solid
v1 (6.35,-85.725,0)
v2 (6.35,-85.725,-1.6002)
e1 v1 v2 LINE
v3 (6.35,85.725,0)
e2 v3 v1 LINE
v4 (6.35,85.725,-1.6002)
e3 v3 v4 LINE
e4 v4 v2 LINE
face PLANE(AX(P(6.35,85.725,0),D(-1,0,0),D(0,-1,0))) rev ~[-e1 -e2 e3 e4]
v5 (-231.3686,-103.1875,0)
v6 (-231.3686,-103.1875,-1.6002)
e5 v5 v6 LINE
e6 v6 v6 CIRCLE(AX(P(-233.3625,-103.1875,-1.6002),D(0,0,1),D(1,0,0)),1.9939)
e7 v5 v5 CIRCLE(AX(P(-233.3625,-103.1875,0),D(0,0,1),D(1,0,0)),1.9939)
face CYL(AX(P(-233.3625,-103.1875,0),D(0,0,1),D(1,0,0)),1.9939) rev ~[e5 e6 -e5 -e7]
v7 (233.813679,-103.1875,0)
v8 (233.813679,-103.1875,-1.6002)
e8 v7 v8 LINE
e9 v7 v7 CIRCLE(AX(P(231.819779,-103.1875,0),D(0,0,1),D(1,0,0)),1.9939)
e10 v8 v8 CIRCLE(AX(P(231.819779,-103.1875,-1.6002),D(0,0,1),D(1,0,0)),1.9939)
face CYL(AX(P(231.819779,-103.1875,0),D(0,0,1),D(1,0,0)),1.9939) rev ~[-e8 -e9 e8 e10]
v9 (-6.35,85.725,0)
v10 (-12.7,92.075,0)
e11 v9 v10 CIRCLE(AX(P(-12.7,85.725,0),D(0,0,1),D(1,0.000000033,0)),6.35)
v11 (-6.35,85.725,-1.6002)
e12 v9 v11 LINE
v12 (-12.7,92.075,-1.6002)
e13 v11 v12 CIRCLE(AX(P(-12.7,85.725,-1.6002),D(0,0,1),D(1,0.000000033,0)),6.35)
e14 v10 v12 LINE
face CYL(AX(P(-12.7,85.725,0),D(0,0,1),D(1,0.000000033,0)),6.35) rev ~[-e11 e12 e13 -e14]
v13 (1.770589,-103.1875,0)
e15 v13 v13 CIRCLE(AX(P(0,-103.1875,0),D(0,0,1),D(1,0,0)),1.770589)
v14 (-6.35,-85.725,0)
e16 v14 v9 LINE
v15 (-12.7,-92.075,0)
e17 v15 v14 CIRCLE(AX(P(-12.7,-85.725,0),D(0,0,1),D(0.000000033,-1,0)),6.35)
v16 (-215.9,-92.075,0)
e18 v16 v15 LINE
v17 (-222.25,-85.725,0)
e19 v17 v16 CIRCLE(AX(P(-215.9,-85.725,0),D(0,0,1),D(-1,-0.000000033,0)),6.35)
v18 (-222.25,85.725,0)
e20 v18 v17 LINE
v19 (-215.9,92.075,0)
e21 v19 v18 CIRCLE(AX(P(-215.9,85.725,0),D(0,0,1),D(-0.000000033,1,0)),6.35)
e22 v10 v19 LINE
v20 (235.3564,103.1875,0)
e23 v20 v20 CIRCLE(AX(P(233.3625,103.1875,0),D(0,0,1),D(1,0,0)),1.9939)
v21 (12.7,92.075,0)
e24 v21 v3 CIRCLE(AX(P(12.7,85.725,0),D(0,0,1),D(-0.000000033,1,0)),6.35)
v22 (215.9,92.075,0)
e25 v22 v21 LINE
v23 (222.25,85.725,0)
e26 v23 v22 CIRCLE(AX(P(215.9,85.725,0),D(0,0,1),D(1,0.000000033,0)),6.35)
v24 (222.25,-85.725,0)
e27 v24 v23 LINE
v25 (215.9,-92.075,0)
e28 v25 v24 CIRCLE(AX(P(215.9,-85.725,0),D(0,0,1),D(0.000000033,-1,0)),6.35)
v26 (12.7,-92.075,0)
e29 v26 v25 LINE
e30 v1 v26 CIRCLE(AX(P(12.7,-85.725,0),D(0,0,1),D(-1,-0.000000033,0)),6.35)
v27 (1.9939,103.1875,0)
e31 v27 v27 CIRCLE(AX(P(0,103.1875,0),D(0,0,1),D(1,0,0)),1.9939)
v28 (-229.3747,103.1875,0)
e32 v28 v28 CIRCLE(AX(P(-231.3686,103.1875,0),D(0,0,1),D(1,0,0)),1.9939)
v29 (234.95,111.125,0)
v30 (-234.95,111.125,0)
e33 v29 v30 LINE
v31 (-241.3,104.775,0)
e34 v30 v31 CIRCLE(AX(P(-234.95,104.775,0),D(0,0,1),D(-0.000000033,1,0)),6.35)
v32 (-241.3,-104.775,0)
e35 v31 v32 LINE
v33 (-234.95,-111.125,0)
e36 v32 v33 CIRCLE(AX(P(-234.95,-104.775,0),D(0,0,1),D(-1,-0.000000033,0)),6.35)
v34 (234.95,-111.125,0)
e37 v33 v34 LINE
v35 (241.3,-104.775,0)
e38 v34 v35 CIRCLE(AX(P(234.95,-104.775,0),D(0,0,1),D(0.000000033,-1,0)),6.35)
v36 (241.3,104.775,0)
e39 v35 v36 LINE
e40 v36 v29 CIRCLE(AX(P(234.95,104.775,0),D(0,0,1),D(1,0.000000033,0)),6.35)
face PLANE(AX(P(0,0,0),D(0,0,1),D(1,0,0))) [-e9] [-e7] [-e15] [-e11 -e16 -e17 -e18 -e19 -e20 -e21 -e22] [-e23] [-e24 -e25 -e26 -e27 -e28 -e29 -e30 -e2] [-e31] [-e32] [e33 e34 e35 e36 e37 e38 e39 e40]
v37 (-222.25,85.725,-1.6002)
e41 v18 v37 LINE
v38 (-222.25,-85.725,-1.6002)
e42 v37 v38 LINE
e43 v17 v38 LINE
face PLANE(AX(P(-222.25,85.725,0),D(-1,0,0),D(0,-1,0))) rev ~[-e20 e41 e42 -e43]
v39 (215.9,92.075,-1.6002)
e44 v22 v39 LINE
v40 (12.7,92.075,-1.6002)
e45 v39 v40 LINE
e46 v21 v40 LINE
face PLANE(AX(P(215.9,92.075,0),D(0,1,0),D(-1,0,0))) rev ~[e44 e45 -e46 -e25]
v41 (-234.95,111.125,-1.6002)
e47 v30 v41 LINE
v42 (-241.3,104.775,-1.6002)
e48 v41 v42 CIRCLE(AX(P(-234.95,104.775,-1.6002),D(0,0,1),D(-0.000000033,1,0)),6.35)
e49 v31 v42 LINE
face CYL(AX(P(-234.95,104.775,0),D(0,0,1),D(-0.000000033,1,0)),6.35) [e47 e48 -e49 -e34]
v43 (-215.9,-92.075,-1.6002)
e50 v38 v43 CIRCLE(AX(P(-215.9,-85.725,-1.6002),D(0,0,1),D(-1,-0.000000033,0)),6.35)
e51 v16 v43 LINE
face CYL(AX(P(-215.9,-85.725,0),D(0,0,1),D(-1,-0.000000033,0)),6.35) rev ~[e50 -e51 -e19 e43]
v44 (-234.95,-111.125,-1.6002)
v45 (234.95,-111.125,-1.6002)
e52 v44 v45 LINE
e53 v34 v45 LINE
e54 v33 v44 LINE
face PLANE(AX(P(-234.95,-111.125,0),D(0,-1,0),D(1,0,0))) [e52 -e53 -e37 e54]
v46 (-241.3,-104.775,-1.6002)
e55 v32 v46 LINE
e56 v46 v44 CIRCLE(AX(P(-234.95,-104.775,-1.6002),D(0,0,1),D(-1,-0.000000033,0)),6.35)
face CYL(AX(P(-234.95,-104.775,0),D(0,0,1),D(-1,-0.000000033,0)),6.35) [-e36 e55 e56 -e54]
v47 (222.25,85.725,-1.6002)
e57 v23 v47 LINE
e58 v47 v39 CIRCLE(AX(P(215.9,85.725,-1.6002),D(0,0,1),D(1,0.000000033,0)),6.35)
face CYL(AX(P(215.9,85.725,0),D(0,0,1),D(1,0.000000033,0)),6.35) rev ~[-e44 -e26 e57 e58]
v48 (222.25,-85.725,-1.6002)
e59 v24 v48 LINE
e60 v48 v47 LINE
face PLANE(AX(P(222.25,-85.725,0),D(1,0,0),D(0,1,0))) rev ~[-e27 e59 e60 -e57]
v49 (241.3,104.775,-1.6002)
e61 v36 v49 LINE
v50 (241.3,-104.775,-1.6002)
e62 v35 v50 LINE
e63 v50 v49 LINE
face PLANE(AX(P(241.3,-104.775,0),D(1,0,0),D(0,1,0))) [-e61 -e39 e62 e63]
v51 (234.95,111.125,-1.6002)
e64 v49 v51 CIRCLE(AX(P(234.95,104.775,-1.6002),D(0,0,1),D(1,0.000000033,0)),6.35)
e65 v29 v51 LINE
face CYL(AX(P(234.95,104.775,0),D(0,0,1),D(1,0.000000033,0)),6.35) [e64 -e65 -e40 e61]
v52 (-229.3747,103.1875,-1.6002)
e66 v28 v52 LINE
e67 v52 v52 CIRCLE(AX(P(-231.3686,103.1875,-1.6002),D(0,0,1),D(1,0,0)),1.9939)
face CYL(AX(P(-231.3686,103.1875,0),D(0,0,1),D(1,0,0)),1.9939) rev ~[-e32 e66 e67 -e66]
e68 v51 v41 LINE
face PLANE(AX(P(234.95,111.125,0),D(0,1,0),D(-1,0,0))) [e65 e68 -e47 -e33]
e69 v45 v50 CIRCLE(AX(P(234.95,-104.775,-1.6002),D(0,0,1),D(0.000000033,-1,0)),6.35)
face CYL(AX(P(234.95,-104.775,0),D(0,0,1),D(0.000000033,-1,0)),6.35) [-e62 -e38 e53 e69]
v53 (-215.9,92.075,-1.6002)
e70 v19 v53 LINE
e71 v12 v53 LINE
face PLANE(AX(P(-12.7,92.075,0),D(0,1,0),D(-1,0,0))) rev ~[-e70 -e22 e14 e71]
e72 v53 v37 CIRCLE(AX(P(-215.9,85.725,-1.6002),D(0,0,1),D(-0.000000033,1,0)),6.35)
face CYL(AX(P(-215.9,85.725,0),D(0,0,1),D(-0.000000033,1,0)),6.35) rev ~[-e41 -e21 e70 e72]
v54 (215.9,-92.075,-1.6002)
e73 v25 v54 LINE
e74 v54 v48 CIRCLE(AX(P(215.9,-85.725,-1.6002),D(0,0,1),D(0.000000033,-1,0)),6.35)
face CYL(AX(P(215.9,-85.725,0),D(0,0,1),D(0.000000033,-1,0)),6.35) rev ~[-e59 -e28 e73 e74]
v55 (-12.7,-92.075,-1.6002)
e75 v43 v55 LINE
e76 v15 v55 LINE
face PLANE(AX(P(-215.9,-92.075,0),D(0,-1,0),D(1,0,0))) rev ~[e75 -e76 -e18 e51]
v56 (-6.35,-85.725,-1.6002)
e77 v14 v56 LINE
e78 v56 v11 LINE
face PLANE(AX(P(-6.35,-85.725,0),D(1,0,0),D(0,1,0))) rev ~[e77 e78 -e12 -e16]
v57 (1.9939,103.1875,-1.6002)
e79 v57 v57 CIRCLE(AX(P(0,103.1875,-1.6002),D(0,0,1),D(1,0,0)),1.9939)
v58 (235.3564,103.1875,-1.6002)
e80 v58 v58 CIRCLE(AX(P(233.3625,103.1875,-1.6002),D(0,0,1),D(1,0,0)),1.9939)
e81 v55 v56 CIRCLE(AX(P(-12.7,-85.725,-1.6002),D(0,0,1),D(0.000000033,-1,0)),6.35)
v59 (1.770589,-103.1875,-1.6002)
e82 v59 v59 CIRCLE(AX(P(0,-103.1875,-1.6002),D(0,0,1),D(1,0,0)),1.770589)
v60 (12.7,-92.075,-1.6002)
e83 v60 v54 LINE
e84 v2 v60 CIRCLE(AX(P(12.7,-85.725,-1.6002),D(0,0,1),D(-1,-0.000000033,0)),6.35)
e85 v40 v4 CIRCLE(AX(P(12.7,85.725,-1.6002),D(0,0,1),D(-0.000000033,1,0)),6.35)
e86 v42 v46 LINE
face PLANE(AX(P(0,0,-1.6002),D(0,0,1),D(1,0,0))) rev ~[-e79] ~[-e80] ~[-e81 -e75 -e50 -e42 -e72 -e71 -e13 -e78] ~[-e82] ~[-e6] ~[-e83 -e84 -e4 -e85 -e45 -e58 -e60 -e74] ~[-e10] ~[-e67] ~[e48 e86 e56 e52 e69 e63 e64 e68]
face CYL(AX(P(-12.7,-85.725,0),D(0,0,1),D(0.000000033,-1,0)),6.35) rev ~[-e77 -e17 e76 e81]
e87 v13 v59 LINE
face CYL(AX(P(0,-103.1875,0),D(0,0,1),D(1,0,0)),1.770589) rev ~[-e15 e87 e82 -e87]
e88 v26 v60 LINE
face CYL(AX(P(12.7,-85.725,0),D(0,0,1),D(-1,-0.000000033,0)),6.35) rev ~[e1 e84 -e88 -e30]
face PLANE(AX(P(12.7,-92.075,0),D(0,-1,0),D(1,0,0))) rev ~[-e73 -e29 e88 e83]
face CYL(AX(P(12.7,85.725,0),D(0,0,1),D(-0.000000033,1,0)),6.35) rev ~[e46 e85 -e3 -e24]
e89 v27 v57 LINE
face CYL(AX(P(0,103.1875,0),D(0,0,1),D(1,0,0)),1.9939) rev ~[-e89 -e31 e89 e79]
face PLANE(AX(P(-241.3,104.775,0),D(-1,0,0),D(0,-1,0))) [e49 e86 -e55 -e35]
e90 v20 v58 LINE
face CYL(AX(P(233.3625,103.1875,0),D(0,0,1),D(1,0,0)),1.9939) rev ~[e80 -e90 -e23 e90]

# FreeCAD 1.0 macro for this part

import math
import FreeCAD as App
import Part
import Sketcher
from FreeCAD import Vector
Q = App.Units.Quantity

doc = App.newDocument("Part")
body = doc.addObject("PartDesign::Body", "Body")

# Sketch on XY plane
sketch1 = doc.addObject("Sketcher::SketchObject", "Sketch")
body.addObject(sketch1)
sketch1.AttachmentSupport = (doc.XY_Plane, [""])
sketch1.MapMode = "FlatFace"
sketch1.addGeometry(Part.ArcOfCircle(Part.Circle(Vector(-234.95, -104.775, 0), Vector(0, 0, 1), 6.35), math.radians(-179.999998), math.radians(-90.000002)), False)
sketch1.addGeometry(Part.LineSegment(Vector(-234.95, -111.125, 0), Vector(234.95, -111.125, 0)), False)
sketch1.addGeometry(Part.ArcOfCircle(Part.Circle(Vector(234.95, -104.775, 0), Vector(0, 0, 1), 6.35), math.radians(-89.999998), math.radians(-0.000002)), False)
sketch1.addGeometry(Part.LineSegment(Vector(241.3, -104.775, 0), Vector(241.3, 104.775, 0)), False)
sketch1.addGeometry(Part.ArcOfCircle(Part.Circle(Vector(234.95, 104.775, 0), Vector(0, 0, 1), 6.35), math.radians(0.000002), math.radians(89.999998)), False)
sketch1.addGeometry(Part.LineSegment(Vector(234.95, 111.125, 0), Vector(-234.95, 111.125, 0)), False)
sketch1.addGeometry(Part.ArcOfCircle(Part.Circle(Vector(-234.95, 104.775, 0), Vector(0, 0, 1), 6.35), math.radians(90.000002), math.radians(179.999998)), False)
sketch1.addGeometry(Part.LineSegment(Vector(-241.3, 104.775, 0), Vector(-241.3, -104.775, 0)), False)
sketch1.addConstraint(Sketcher.Constraint("Tangent", 0, 2, 1, 1))
sketch1.addConstraint(Sketcher.Constraint("Tangent", 1, 2, 2, 1))
sketch1.addConstraint(Sketcher.Constraint("Tangent", 2, 2, 3, 1))
sketch1.addConstraint(Sketcher.Constraint("Tangent", 3, 2, 4, 1))
sketch1.addConstraint(Sketcher.Constraint("Tangent", 4, 2, 5, 1))
sketch1.addConstraint(Sketcher.Constraint("Tangent", 5, 2, 6, 1))
sketch1.addConstraint(Sketcher.Constraint("Tangent", 6, 2, 7, 1))
sketch1.addConstraint(Sketcher.Constraint("Tangent", 7, 2, 0, 1))
sketch1.addConstraint(Sketcher.Constraint("Horizontal", 1))
sketch1.addConstraint(Sketcher.Constraint("Vertical", 3))
sketch1.addConstraint(Sketcher.Constraint("Horizontal", 5))
sketch1.addConstraint(Sketcher.Constraint("Vertical", 7))
sketch1.addConstraint(Sketcher.Constraint("Equal", 0, 2))
sketch1.addConstraint(Sketcher.Constraint("Equal", 2, 4))
sketch1.addConstraint(Sketcher.Constraint("Equal", 4, 6))
sketch1.addConstraint(Sketcher.Constraint("Symmetric", 0, 3, 4, 3, -1, 1))
sketch1.addConstraint(Sketcher.Constraint("Radius", 0, Q("0.25 in")))
sketch1.addConstraint(Sketcher.Constraint("DistanceX", 1, 1, 1, 2, Q("18.5 in")))
sketch1.addConstraint(Sketcher.Constraint("DistanceY", 3, 1, 3, 2, Q("8.25 in")))
pad1 = doc.addObject("PartDesign::Pad", "Pad")
body.addObject(pad1)
pad1.Profile = sketch1
pad1.Length = Q("0.063 in")
pad1.Reversed = True

# Sketch on XY plane
sketch2 = doc.addObject("Sketcher::SketchObject", "Sketch001")
body.addObject(sketch2)
sketch2.AttachmentSupport = (doc.XY_Plane, [""])
sketch2.MapMode = "FlatFace"
sketch2.addGeometry(Part.ArcOfCircle(Part.Circle(Vector(-215.9, -85.725, 0), Vector(0, 0, 1), 6.35), math.radians(-179.999998), math.radians(-90.000002)), False)
sketch2.addGeometry(Part.LineSegment(Vector(-215.9, -92.075, 0), Vector(-12.7, -92.075, 0)), False)
sketch2.addGeometry(Part.ArcOfCircle(Part.Circle(Vector(-12.7, -85.725, 0), Vector(0, 0, 1), 6.35), math.radians(-89.999998), math.radians(-0.000002)), False)
sketch2.addGeometry(Part.LineSegment(Vector(-6.35, -85.725, 0), Vector(-6.35, 85.725, 0)), False)
sketch2.addGeometry(Part.ArcOfCircle(Part.Circle(Vector(-12.7, 85.725, 0), Vector(0, 0, 1), 6.35), math.radians(0.000002), math.radians(89.999998)), False)
sketch2.addGeometry(Part.LineSegment(Vector(-12.7, 92.075, 0), Vector(-215.9, 92.075, 0)), False)
sketch2.addGeometry(Part.ArcOfCircle(Part.Circle(Vector(-215.9, 85.725, 0), Vector(0, 0, 1), 6.35), math.radians(90.000002), math.radians(179.999998)), False)
sketch2.addGeometry(Part.LineSegment(Vector(-222.25, 85.725, 0), Vector(-222.25, -85.725, 0)), False)
sketch2.addGeometry(Part.ArcOfCircle(Part.Circle(Vector(215.9, -85.725, 0), Vector(0, 0, 1), 6.35), math.radians(-89.999998), math.radians(-0.000002)), False)
sketch2.addGeometry(Part.LineSegment(Vector(222.25, -85.725, 0), Vector(222.25, 85.725, 0)), False)
sketch2.addGeometry(Part.ArcOfCircle(Part.Circle(Vector(215.9, 85.725, 0), Vector(0, 0, 1), 6.35), math.radians(0.000002), math.radians(89.999998)), False)
sketch2.addGeometry(Part.LineSegment(Vector(215.9, 92.075, 0), Vector(12.7, 92.075, 0)), False)
sketch2.addGeometry(Part.ArcOfCircle(Part.Circle(Vector(12.7, 85.725, 0), Vector(0, 0, 1), 6.35), math.radians(90.000002), math.radians(179.999998)), False)
sketch2.addGeometry(Part.LineSegment(Vector(6.35, 85.725, 0), Vector(6.35, -85.725, 0)), False)
sketch2.addGeometry(Part.ArcOfCircle(Part.Circle(Vector(12.7, -85.725, 0), Vector(0, 0, 1), 6.35), math.radians(-179.999998), math.radians(-90.000002)), False)
sketch2.addGeometry(Part.LineSegment(Vector(12.7, -92.075, 0), Vector(215.9, -92.075, 0)), False)
sketch2.addConstraint(Sketcher.Constraint("Tangent", 0, 2, 1, 1))
sketch2.addConstraint(Sketcher.Constraint("Tangent", 1, 2, 2, 1))
sketch2.addConstraint(Sketcher.Constraint("Tangent", 2, 2, 3, 1))
sketch2.addConstraint(Sketcher.Constraint("Tangent", 3, 2, 4, 1))
sketch2.addConstraint(Sketcher.Constraint("Tangent", 4, 2, 5, 1))
sketch2.addConstraint(Sketcher.Constraint("Tangent", 5, 2, 6, 1))
sketch2.addConstraint(Sketcher.Constraint("Tangent", 6, 2, 7, 1))
sketch2.addConstraint(Sketcher.Constraint("Tangent", 7, 2, 0, 1))
sketch2.addConstraint(Sketcher.Constraint("Tangent", 8, 2, 9, 1))
sketch2.addConstraint(Sketcher.Constraint("Tangent", 9, 2, 10, 1))
sketch2.addConstraint(Sketcher.Constraint("Tangent", 10, 2, 11, 1))
sketch2.addConstraint(Sketcher.Constraint("Tangent", 11, 2, 12, 1))
sketch2.addConstraint(Sketcher.Constraint("Tangent", 12, 2, 13, 1))
sketch2.addConstraint(Sketcher.Constraint("Tangent", 13, 2, 14, 1))
sketch2.addConstraint(Sketcher.Constraint("Tangent", 14, 2, 15, 1))
sketch2.addConstraint(Sketcher.Constraint("Tangent", 15, 2, 8, 1))
sketch2.addConstraint(Sketcher.Constraint("Horizontal", 1))
sketch2.addConstraint(Sketcher.Constraint("Vertical", 3))
sketch2.addConstraint(Sketcher.Constraint("Horizontal", 5))
sketch2.addConstraint(Sketcher.Constraint("Vertical", 7))
sketch2.addConstraint(Sketcher.Constraint("Vertical", 9))
sketch2.addConstraint(Sketcher.Constraint("Horizontal", 11))
sketch2.addConstraint(Sketcher.Constraint("Vertical", 13))
sketch2.addConstraint(Sketcher.Constraint("Horizontal", 15))
sketch2.addConstraint(Sketcher.Constraint("Equal", 0, 2))
sketch2.addConstraint(Sketcher.Constraint("Equal", 2, 4))
sketch2.addConstraint(Sketcher.Constraint("Equal", 4, 6))
sketch2.addConstraint(Sketcher.Constraint("Equal", 6, 8))
sketch2.addConstraint(Sketcher.Constraint("Equal", 8, 10))
sketch2.addConstraint(Sketcher.Constraint("Equal", 10, 12))
sketch2.addConstraint(Sketcher.Constraint("Equal", 12, 14))
sketch2.addConstraint(Sketcher.Constraint("Symmetric", 6, 3, 8, 3, -1, 1))
sketch2.addConstraint(Sketcher.Constraint("Symmetric", 2, 3, 12, 3, -1, 1))
sketch2.addConstraint(Sketcher.Constraint("Horizontal", 2, 3, 8, 3))
sketch2.addConstraint(Sketcher.Constraint("DistanceX", 1, 1, 1, 2, Q("8 in")))
sketch2.addConstraint(Sketcher.Constraint("Radius", 0, Q("0.25 in")))
sketch2.addConstraint(Sketcher.Constraint("DistanceX", 2, 3, 8, 3, Q("9 in")))
sketch2.addConstraint(Sketcher.Constraint("DistanceY", 0, 2, 6, 3, Q("7 in")))
pocket1 = doc.addObject("PartDesign::Pocket", "Pocket")
body.addObject(pocket1)
pocket1.Profile = sketch2
pocket1.Type = "ThroughAll"

# Sketch on XY plane
sketch3 = doc.addObject("Sketcher::SketchObject", "Sketch002")
body.addObject(sketch3)
sketch3.AttachmentSupport = (doc.XY_Plane, [""])
sketch3.MapMode = "FlatFace"
sketch3.addGeometry(Part.Circle(Vector(-231.3686, 103.1875, 0), Vector(0, 0, 1), 1.9939), False)
sketch3.addGeometry(Part.Circle(Vector(0, -103.1875, 0), Vector(0, 0, 1), 1.770589), False)
sketch3.addGeometry(Part.Circle(Vector(0, 103.1875, 0), Vector(0, 0, 1), 1.9939), False)
sketch3.addGeometry(Part.Circle(Vector(233.3625, 103.1875, 0), Vector(0, 0, 1), 1.9939), False)
sketch3.addGeometry(Part.Circle(Vector(231.819779, -103.1875, 0), Vector(0, 0, 1), 1.9939), False)
sketch3.addGeometry(Part.Circle(Vector(-233.3625, -103.1875, 0), Vector(0, 0, 1), 1.9939), False)
sketch3.addConstraint(Sketcher.Constraint("Equal", 0, 2))
sketch3.addConstraint(Sketcher.Constraint("Equal", 2, 3))
sketch3.addConstraint(Sketcher.Constraint("Equal", 3, 4))
sketch3.addConstraint(Sketcher.Constraint("Equal", 4, 5))
sketch3.addConstraint(Sketcher.Constraint("Symmetric", 1, 3, 2, 3, -1, 1))
sketch3.addConstraint(Sketcher.Constraint("Symmetric", 3, 3, 5, 3, -1, 1))
sketch3.addConstraint(Sketcher.Constraint("PointOnObject", 1, 3, -2))
sketch3.addConstraint(Sketcher.Constraint("Horizontal", 0, 3, 2, 3))
sketch3.addConstraint(Sketcher.Constraint("Horizontal", 2, 3, 3, 3))
sketch3.addConstraint(Sketcher.Constraint("Horizontal", 1, 3, 4, 3))
sketch3.addConstraint(Sketcher.Constraint("Diameter", 0, Q("0.157 in")))
sketch3.addConstraint(Sketcher.Constraint("DistanceX", 0, 3, -1, 1, Q("9.109 in")))
sketch3.addConstraint(Sketcher.Constraint("DistanceY", -1, 1, 0, 3, Q("4.0625 in")))
sketch3.addConstraint(Sketcher.Constraint("DistanceX", -1, 1, 3, 3, Q("9.1875 in")))
sketch3.addConstraint(Sketcher.Constraint("Diameter", 1, 3.541178))
sketch3.addConstraint(Sketcher.Constraint("DistanceX", -1, 1, 4, 3, 231.819779))
pocket2 = doc.addObject("PartDesign::Pocket", "Pocket001")
body.addObject(pocket2)
pocket2.Profile = sketch3
pocket2.Type = "ThroughAll"

doc.recompute()
